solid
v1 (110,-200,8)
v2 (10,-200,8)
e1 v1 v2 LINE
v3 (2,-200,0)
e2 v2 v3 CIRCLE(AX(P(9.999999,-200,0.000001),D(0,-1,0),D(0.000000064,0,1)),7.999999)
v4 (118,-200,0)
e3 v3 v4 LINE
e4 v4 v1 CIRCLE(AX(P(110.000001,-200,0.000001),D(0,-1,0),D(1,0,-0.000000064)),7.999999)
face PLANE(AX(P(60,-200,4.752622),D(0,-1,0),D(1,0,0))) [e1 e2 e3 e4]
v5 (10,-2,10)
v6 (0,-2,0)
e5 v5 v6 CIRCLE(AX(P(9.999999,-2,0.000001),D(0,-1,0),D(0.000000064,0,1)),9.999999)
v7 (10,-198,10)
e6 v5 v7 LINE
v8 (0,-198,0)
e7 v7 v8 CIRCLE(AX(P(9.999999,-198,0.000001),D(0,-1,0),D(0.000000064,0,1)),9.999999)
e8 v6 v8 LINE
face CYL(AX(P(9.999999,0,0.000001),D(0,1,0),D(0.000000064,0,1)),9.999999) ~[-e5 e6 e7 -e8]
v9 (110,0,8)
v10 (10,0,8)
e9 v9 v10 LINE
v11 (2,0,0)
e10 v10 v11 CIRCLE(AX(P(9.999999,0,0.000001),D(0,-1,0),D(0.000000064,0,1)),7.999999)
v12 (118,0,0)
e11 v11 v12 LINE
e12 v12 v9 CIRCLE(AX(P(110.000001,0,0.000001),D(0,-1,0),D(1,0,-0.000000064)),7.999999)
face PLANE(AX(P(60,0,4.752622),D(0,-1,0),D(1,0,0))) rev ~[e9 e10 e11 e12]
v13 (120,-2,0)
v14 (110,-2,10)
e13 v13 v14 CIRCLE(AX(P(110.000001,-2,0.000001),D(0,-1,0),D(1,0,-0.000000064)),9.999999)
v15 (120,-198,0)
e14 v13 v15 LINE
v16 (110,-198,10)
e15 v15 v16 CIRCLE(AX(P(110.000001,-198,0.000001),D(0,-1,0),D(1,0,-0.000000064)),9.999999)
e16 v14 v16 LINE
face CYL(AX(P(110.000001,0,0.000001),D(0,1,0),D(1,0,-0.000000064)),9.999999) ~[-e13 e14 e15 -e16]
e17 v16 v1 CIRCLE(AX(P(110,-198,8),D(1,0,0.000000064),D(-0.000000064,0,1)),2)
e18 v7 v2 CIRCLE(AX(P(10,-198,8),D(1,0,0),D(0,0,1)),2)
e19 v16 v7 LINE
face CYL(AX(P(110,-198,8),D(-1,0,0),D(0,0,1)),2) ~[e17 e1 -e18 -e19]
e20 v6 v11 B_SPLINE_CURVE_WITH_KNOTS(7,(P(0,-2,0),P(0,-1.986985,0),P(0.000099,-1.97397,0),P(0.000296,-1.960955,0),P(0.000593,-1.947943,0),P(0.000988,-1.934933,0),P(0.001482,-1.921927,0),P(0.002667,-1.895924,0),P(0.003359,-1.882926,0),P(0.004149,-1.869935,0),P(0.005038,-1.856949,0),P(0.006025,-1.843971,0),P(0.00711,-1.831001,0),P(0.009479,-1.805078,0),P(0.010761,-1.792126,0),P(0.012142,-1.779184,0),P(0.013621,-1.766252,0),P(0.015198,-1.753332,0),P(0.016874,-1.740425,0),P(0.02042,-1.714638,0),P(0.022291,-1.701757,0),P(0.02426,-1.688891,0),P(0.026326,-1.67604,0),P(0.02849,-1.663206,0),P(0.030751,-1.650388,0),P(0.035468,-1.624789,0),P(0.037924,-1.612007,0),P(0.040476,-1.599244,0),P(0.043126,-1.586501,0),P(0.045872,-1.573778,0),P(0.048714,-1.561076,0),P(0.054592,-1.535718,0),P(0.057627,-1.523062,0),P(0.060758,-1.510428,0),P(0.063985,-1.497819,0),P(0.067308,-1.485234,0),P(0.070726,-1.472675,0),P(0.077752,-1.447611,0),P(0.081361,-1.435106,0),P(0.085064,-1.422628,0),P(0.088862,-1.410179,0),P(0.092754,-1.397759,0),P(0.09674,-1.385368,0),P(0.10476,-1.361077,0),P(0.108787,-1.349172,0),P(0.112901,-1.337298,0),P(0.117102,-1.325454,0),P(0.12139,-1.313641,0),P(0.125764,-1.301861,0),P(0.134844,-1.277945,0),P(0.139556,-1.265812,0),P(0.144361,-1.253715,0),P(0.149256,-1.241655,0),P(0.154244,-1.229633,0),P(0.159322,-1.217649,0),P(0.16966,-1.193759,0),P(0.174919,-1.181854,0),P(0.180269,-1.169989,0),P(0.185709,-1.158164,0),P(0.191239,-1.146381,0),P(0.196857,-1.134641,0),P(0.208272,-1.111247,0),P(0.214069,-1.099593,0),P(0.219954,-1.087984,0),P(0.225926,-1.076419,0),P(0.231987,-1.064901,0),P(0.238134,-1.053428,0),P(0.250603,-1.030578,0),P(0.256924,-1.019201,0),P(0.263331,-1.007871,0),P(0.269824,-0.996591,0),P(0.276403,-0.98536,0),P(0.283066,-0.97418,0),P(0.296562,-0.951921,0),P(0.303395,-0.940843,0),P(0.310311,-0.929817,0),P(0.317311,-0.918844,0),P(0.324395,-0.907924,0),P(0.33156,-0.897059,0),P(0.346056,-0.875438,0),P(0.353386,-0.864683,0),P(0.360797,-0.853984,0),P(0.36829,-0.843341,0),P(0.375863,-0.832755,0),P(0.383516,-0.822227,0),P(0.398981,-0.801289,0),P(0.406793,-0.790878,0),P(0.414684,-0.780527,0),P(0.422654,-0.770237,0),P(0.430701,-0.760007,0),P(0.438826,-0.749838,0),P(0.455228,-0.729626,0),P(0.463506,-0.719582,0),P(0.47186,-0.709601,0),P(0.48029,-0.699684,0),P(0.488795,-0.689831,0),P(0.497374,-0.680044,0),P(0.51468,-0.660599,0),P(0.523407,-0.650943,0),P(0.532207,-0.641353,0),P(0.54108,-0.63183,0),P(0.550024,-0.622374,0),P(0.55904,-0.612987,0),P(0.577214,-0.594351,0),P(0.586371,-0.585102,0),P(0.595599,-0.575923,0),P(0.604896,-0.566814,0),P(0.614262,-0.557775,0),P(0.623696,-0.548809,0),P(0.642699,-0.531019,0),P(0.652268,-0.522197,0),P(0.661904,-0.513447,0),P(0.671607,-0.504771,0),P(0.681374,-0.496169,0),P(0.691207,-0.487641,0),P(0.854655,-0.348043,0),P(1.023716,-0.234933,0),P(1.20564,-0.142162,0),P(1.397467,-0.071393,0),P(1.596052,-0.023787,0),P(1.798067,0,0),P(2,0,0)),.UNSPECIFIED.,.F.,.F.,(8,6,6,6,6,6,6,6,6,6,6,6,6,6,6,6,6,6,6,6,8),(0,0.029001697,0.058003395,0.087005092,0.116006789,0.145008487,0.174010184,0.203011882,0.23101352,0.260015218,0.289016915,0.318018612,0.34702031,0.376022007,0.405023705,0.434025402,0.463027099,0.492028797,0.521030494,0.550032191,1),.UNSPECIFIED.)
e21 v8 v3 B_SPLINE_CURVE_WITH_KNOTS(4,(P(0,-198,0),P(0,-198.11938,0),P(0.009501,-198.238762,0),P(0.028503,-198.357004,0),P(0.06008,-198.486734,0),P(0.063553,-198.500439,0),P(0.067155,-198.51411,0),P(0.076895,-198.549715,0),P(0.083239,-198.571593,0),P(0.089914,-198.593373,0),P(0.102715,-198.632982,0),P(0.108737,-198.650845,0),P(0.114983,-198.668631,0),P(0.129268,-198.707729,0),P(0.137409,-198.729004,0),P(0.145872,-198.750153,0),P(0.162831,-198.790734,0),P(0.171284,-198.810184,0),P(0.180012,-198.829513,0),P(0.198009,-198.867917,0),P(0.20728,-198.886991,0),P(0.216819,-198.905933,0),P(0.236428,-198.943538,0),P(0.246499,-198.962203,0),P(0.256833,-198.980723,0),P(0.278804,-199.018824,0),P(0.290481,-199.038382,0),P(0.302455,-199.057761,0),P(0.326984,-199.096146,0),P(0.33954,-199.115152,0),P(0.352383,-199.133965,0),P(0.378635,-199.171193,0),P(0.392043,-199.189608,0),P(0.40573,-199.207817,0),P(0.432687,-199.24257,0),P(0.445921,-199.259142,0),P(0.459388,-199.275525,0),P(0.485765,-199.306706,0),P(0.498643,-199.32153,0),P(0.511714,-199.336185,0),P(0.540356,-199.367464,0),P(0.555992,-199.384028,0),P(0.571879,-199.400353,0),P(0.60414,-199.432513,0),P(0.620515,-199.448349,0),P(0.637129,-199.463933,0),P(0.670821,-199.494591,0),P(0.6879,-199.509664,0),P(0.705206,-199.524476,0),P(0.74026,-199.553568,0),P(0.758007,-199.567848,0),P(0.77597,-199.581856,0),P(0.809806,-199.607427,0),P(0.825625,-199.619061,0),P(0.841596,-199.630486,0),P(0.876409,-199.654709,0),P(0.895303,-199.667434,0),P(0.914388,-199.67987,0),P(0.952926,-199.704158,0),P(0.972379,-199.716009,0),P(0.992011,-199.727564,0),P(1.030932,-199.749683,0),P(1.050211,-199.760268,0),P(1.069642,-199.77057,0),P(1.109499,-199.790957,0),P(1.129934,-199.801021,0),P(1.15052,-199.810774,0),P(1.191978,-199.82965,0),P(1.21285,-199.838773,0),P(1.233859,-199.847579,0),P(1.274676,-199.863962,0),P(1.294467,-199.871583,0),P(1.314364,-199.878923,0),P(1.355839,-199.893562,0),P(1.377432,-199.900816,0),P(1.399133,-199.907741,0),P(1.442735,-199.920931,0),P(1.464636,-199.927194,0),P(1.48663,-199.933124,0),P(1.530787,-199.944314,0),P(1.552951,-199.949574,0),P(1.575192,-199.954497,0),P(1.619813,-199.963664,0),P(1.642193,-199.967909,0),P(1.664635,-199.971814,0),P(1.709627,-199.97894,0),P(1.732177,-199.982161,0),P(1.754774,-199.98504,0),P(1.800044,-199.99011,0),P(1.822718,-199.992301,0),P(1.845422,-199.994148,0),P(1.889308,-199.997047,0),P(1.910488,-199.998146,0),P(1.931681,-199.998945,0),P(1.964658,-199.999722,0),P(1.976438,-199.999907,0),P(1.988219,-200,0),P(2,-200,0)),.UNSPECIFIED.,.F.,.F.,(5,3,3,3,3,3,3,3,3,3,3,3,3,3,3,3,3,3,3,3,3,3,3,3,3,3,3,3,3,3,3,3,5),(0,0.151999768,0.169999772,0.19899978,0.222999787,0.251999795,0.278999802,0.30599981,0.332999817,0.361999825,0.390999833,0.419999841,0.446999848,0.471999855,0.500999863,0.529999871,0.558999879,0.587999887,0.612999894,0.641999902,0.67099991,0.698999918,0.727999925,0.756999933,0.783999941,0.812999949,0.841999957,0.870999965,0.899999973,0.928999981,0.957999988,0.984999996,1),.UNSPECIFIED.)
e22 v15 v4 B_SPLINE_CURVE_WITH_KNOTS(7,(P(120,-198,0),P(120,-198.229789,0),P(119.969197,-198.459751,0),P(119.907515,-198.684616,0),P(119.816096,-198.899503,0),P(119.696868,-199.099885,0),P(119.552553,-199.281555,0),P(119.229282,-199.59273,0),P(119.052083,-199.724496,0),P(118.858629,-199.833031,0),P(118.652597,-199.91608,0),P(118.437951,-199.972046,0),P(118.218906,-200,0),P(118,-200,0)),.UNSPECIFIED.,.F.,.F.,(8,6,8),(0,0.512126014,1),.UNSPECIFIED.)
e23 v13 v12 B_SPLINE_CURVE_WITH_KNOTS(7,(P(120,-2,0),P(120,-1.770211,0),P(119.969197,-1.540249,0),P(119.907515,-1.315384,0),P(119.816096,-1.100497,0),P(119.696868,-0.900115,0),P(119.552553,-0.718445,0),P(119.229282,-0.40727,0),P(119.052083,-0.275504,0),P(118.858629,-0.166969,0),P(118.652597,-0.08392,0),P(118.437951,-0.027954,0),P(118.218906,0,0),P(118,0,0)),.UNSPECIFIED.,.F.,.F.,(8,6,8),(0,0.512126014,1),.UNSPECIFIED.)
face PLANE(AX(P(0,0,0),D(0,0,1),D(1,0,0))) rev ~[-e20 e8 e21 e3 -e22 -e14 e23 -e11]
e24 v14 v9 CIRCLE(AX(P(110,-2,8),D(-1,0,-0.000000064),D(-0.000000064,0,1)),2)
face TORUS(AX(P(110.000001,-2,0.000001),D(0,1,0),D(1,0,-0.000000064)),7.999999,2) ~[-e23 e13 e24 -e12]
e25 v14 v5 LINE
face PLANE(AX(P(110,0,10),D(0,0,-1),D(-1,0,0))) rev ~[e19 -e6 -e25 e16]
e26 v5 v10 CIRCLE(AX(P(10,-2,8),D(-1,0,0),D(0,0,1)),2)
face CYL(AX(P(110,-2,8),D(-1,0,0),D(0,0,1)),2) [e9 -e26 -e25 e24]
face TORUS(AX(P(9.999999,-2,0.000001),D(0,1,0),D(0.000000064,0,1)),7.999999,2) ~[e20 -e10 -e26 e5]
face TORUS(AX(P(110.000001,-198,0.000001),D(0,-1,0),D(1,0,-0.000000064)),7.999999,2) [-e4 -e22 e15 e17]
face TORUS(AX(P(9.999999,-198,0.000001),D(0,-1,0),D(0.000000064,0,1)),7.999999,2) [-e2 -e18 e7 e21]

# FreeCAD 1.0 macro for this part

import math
import FreeCAD as App
import Part
import Sketcher
Q = App.Units.Quantity


def edges_at(feature, points):
    """Names of the edges that pass closest to the given points."""
    edges = feature.Shape.Edges
    near = lambda p: min(range(len(edges)), key=lambda i: edges[i].distToShape(Part.Vertex(*p))[0])
    return sorted({f"Edge{near(p) + 1}" for p in points})

doc = App.newDocument("Part")
body = doc.addObject("PartDesign::Body", "Body")

sketch1 = body.newObject("Sketcher::SketchObject", "Sketch")
sketch1.AttachmentSupport = (doc.getObject("XZ_Plane"), [""])
sketch1.MapMode = "FlatFace"
sketch1.addGeometry([
    Part.ArcOfCircle(Part.Circle(App.Vector(10, 0, 0), App.Vector(0, 0, 1), 10), math.radians(90), math.radians(180)),
    Part.LineSegment(App.Vector(0, 0, 0), App.Vector(120, 0, 0)),
    Part.ArcOfCircle(Part.Circle(App.Vector(110, 0, 0), App.Vector(0, 0, 1), 10), math.radians(0), math.radians(90)),
    Part.LineSegment(App.Vector(110, 10, 0), App.Vector(10, 10, 0)),
], False)
sketch1.addConstraint([
    Sketcher.Constraint("Coincident", 0, 2, 1, 1),
    Sketcher.Constraint("Coincident", 1, 2, 2, 1),
    Sketcher.Constraint("Tangent", 2, 2, 3, 1),
    Sketcher.Constraint("Tangent", 3, 2, 0, 1),
    Sketcher.Constraint("Horizontal", 1),
    Sketcher.Constraint("Horizontal", 3),
    Sketcher.Constraint("Coincident", 0, 2, -1, 1),
    Sketcher.Constraint("Equal", 0, 2),
    Sketcher.Constraint("PointOnObject", 0, 3, -1),
    Sketcher.Constraint("Radius", 0, Q("9.999999 mm")),
    Sketcher.Constraint("DistanceX", 1, 1, 1, 2, Q("120 mm")),
])
pad1 = body.newObject("PartDesign::Pad", "Pad")
pad1.Profile = sketch1
pad1.Length = 200
doc.recompute()

fillet = body.newObject("PartDesign::Fillet", "Fillet")
fillet.Base = (pad1, edges_at(pad1, [(60, -200, 10)]))
fillet.Radius = 2
doc.recompute()

fillet2 = body.newObject("PartDesign::Fillet", "Fillet001")
fillet2.Base = (fillet, edges_at(fillet, [(60, 0, 10)]))
fillet2.Radius = 2

doc.recompute()
